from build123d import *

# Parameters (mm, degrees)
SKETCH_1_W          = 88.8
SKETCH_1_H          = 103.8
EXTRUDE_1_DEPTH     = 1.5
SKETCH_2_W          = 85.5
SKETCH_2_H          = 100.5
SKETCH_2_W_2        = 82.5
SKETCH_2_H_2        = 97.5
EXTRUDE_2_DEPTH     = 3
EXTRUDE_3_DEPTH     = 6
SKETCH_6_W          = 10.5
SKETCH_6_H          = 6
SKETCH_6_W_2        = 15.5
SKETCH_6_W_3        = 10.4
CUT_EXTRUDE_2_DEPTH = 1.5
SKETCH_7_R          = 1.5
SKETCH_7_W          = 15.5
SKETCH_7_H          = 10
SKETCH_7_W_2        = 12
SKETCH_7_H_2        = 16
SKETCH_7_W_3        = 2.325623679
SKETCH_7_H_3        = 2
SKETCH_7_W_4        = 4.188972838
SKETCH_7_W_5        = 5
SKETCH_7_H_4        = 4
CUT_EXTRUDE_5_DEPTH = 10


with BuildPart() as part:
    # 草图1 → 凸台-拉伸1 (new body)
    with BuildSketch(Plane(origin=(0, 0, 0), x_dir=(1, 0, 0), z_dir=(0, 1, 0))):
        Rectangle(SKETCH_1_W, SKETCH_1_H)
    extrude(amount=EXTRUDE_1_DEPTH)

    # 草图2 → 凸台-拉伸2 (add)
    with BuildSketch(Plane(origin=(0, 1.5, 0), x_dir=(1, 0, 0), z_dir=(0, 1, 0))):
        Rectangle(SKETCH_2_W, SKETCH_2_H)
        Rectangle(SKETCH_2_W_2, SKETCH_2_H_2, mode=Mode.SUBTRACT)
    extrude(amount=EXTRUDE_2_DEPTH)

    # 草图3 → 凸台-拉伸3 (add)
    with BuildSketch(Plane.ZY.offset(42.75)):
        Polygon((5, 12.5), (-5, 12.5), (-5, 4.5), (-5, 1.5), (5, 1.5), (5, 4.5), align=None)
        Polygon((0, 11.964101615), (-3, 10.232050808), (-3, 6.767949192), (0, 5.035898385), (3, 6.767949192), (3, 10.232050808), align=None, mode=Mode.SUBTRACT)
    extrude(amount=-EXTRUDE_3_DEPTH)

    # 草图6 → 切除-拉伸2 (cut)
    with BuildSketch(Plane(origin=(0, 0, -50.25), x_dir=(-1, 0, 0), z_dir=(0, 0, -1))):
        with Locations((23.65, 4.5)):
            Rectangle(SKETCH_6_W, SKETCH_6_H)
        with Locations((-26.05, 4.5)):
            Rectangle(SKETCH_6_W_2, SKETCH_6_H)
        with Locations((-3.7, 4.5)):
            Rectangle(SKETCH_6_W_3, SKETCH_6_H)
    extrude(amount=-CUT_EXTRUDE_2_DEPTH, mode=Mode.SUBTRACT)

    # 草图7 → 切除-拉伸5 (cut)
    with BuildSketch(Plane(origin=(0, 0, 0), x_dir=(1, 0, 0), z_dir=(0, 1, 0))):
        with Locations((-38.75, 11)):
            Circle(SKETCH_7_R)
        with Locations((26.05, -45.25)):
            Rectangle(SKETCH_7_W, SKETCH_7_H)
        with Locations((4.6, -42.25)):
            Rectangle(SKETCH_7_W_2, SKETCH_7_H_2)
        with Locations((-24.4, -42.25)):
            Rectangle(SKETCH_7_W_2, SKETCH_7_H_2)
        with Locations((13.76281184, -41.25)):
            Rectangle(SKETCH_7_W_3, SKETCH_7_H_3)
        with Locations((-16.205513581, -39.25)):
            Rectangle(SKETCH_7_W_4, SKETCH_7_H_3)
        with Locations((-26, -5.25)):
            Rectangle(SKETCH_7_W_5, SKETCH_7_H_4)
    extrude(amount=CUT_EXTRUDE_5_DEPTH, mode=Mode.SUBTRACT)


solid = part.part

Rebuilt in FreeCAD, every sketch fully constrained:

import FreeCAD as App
import Part
import Sketcher
from FreeCAD import Vector
Q = App.Units.Quantity


def add_polygon(sketch, points):
    """Adds a closed chain of lines whose ends are joined by coincident constraints."""
    first, n = sketch.GeometryCount, len(points)
    for a, b in zip(points, points[1:] + points[:1]):
        sketch.addGeometry(Part.LineSegment(App.Vector(*a, 0), App.Vector(*b, 0)), False)
    for i in range(n):
        sketch.addConstraint(Sketcher.Constraint("Coincident", first + i, 2, first + (i + 1) % n, 1))

doc = App.newDocument("Part")
body = doc.addObject("PartDesign::Body", "Body")

# Sketch on XZ plane
sketch1 = doc.addObject("Sketcher::SketchObject", "Sketch")
body.addObject(sketch1)
sketch1.AttachmentSupport = (doc.XZ_Plane, [""])
sketch1.MapMode = "FlatFace"
add_polygon(sketch1, [(-44.4, -51.9), (-44.4, 51.9), (44.4, 51.9), (44.4, -51.9)])  # lines 0-3
sketch1.addConstraint(Sketcher.Constraint("Vertical", 0))
sketch1.addConstraint(Sketcher.Constraint("Horizontal", 1))
sketch1.addConstraint(Sketcher.Constraint("Vertical", 2))
sketch1.addConstraint(Sketcher.Constraint("Horizontal", 3))
sketch1.addConstraint(Sketcher.Constraint("Symmetric", 0, 2, 2, 2, -1, 1))
sketch1.addConstraint(Sketcher.Constraint("DistanceX", 1, 1, 1, 2, 88.8))
sketch1.addConstraint(Sketcher.Constraint("DistanceY", 0, 1, 0, 2, 103.8))
pad1 = doc.addObject("PartDesign::Pad", "Pad")
body.addObject(pad1)
pad1.Profile = sketch1
pad1.Length = 1.5
pad1.Reversed = True

# Sketch on XZ plane
sketch2 = doc.addObject("Sketcher::SketchObject", "Sketch001")
body.addObject(sketch2)
sketch2.AttachmentSupport = (doc.XZ_Plane, [""])
sketch2.MapMode = "FlatFace"
sketch2.AttachmentOffset = App.Placement(Vector(0, 0, -1.5), App.Rotation())
add_polygon(sketch2, [(-42.75, -50.25), (-42.75, 50.25), (42.75, 50.25), (42.75, -50.25)])  # lines 0-3
add_polygon(sketch2, [(41.25, 48.75), (-41.25, 48.75), (-41.25, -48.75), (41.25, -48.75)])  # lines 4-7
sketch2.addConstraint(Sketcher.Constraint("Vertical", 0))
sketch2.addConstraint(Sketcher.Constraint("Horizontal", 1))
sketch2.addConstraint(Sketcher.Constraint("Vertical", 2))
sketch2.addConstraint(Sketcher.Constraint("Horizontal", 3))
sketch2.addConstraint(Sketcher.Constraint("Horizontal", 4))
sketch2.addConstraint(Sketcher.Constraint("Vertical", 5))
sketch2.addConstraint(Sketcher.Constraint("Horizontal", 6))
sketch2.addConstraint(Sketcher.Constraint("Vertical", 7))
sketch2.addConstraint(Sketcher.Constraint("Symmetric", 0, 2, 2, 2, -1, 1))
sketch2.addConstraint(Sketcher.Constraint("Symmetric", 4, 2, 6, 2, -1, 1))
sketch2.addConstraint(Sketcher.Constraint("DistanceX", 1, 1, 1, 2, 85.5))
sketch2.addConstraint(Sketcher.Constraint("DistanceX", 4, 2, 4, 1, 82.5))
sketch2.addConstraint(Sketcher.Constraint("DistanceY", 0, 1, 0, 2, 100.5))
sketch2.addConstraint(Sketcher.Constraint("DistanceY", 5, 2, 5, 1, 97.5))
pad2 = doc.addObject("PartDesign::Pad", "Pad001")
body.addObject(pad2)
pad2.Profile = sketch2
pad2.Length = 3
pad2.Reversed = True

# Sketch on YZ plane
sketch3 = doc.addObject("Sketcher::SketchObject", "Sketch002")
body.addObject(sketch3)
sketch3.AttachmentSupport = (doc.YZ_Plane, [""])
sketch3.MapMode = "FlatFace"
sketch3.AttachmentOffset = App.Placement(Vector(0, 0, -42.75), App.Rotation())
add_polygon(sketch3, [(12.5, 5), (12.5, -5), (1.5, -5), (1.5, 5)])  # lines 0-3
add_polygon(sketch3, [(10.232051, -3), (11.964102, 0), (10.232051, 3), (6.767949, 3), (5.035898, 0), (6.767949, -3)])  # lines 4-9
sketch3.addConstraint(Sketcher.Constraint("Vertical", 0))
sketch3.addConstraint(Sketcher.Constraint("Horizontal", 1))
sketch3.addConstraint(Sketcher.Constraint("Vertical", 2))
sketch3.addConstraint(Sketcher.Constraint("Horizontal", 3))
sketch3.addConstraint(Sketcher.Constraint("Horizontal", 6))
sketch3.addConstraint(Sketcher.Constraint("Horizontal", 9))
sketch3.addConstraint(Sketcher.Constraint("Symmetric", 6, 2, 8, 2, -1))
sketch3.addConstraint(Sketcher.Constraint("PointOnObject", 4, 2, -1))
sketch3.addConstraint(Sketcher.Constraint("PointOnObject", 7, 2, -1))
sketch3.addConstraint(Sketcher.Constraint("Parallel", 4, 7))
sketch3.addConstraint(Sketcher.Constraint("Parallel", 5, 8))
sketch3.addConstraint(Sketcher.Constraint("DistanceX", 1, 2, 1, 1, 11.0))
sketch3.addConstraint(Sketcher.Constraint("DistanceY", 0, 2, 0, 1, 10.0))
sketch3.addConstraint(Sketcher.Constraint("Angle", 4, Q("60 deg")))
sketch3.addConstraint(Sketcher.Constraint("DistanceY", 0, 2, -1, 1, 5.0))
sketch3.addConstraint(Sketcher.Constraint("DistanceY", -1, 1, 5, 2, 3.0))
sketch3.addConstraint(Sketcher.Constraint("DistanceX", -1, 1, 0, 2, 12.5))
sketch3.addConstraint(Sketcher.Constraint("DistanceX", 6, 2, 6, 1, 3.464102))
sketch3.addConstraint(Sketcher.Constraint("DistanceX", -1, 1, 4, 2, 11.964102))
pad3 = doc.addObject("PartDesign::Pad", "Pad002")
body.addObject(pad3)
pad3.Profile = sketch3
pad3.Length = 6

# Sketch on XY plane
sketch4 = doc.addObject("Sketcher::SketchObject", "Sketch003")
body.addObject(sketch4)
sketch4.AttachmentSupport = (doc.XY_Plane, [""])
sketch4.MapMode = "FlatFace"
sketch4.AttachmentOffset = App.Placement(Vector(0, 0, -50.25), App.Rotation())
add_polygon(sketch4, [(-18.4, 7.5), (-18.4, 1.5), (-28.9, 1.5), (-28.9, 7.5)])  # lines 0-3
add_polygon(sketch4, [(33.8, 7.5), (33.8, 1.5), (18.3, 1.5), (18.3, 7.5)])  # lines 4-7
add_polygon(sketch4, [(8.9, 7.5), (8.9, 1.5), (-1.5, 1.5), (-1.5, 7.5)])  # lines 8-11
sketch4.addConstraint(Sketcher.Constraint("Vertical", 0))
sketch4.addConstraint(Sketcher.Constraint("Horizontal", 1))
sketch4.addConstraint(Sketcher.Constraint("Vertical", 2))
sketch4.addConstraint(Sketcher.Constraint("Horizontal", 3))
sketch4.addConstraint(Sketcher.Constraint("Vertical", 4))
sketch4.addConstraint(Sketcher.Constraint("Horizontal", 5))
sketch4.addConstraint(Sketcher.Constraint("Vertical", 6))
sketch4.addConstraint(Sketcher.Constraint("Horizontal", 7))
sketch4.addConstraint(Sketcher.Constraint("Vertical", 8))
sketch4.addConstraint(Sketcher.Constraint("Horizontal", 9))
sketch4.addConstraint(Sketcher.Constraint("Vertical", 10))
sketch4.addConstraint(Sketcher.Constraint("Horizontal", 11))
sketch4.addConstraint(Sketcher.Constraint("Horizontal", 1, 2, 4, 2))
sketch4.addConstraint(Sketcher.Constraint("Horizontal", 3, 2, 6, 2))
sketch4.addConstraint(Sketcher.Constraint("Horizontal", 5, 2, 8, 2))
sketch4.addConstraint(Sketcher.Constraint("Horizontal", 7, 2, 10, 2))
sketch4.addConstraint(Sketcher.Constraint("DistanceY", 0, 2, 0, 1, 6.0))
sketch4.addConstraint(Sketcher.Constraint("DistanceX", 1, 2, 1, 1, 10.5))
sketch4.addConstraint(Sketcher.Constraint("DistanceX", 5, 2, 5, 1, 15.5))
sketch4.addConstraint(Sketcher.Constraint("DistanceX", 9, 2, 9, 1, 10.4))
sketch4.addConstraint(Sketcher.Constraint("DistanceX", 0, 2, -1, 1, 18.4))
sketch4.addConstraint(Sketcher.Constraint("DistanceY", -1, 1, 0, 2, 1.5))
sketch4.addConstraint(Sketcher.Constraint("DistanceX", -1, 1, 4, 2, 33.8))
sketch4.addConstraint(Sketcher.Constraint("DistanceX", -1, 1, 8, 2, 8.9))
pocket1 = doc.addObject("PartDesign::Pocket", "Pocket")
body.addObject(pocket1)
pocket1.Profile = sketch4
pocket1.Length = 1.5
pocket1.Reversed = True

# Sketch on XZ plane
sketch5 = doc.addObject("Sketcher::SketchObject", "Sketch004")
body.addObject(sketch5)
sketch5.AttachmentSupport = (doc.XZ_Plane, [""])
sketch5.MapMode = "FlatFace"
sketch5.addGeometry(Part.Circle(Vector(-38.75, -11, 0), Vector(0, 0, 1), 1.5), False)  # 0
add_polygon(sketch5, [(18.3, 40.25), (18.3, 50.25), (33.8, 50.25), (33.8, 40.25)])  # lines 1-4
add_polygon(sketch5, [(-1.4, 34.25), (-1.4, 50.25), (10.6, 50.25), (10.6, 34.25)])  # lines 5-8
add_polygon(sketch5, [(-30.4, 34.25), (-30.4, 50.25), (-18.4, 50.25), (-18.4, 34.25)])  # lines 9-12
add_polygon(sketch5, [(12.6, 40.25), (12.6, 42.25), (14.925624, 42.25), (14.925624, 40.25)])  # lines 13-16
add_polygon(sketch5, [(-18.3, 38.25), (-18.3, 40.25), (-14.111027, 40.25), (-14.111027, 38.25)])  # lines 17-20
add_polygon(sketch5, [(-28.5, 3.25), (-28.5, 7.25), (-23.5, 7.25), (-23.5, 3.25)])  # lines 21-24
sketch5.addConstraint(Sketcher.Constraint("Vertical", 1))
sketch5.addConstraint(Sketcher.Constraint("Horizontal", 2))
sketch5.addConstraint(Sketcher.Constraint("Vertical", 3))
sketch5.addConstraint(Sketcher.Constraint("Horizontal", 4))
sketch5.addConstraint(Sketcher.Constraint("Vertical", 5))
sketch5.addConstraint(Sketcher.Constraint("Horizontal", 6))
sketch5.addConstraint(Sketcher.Constraint("Vertical", 7))
sketch5.addConstraint(Sketcher.Constraint("Horizontal", 8))
sketch5.addConstraint(Sketcher.Constraint("Vertical", 9))
sketch5.addConstraint(Sketcher.Constraint("Horizontal", 10))
sketch5.addConstraint(Sketcher.Constraint("Vertical", 11))
sketch5.addConstraint(Sketcher.Constraint("Horizontal", 12))
sketch5.addConstraint(Sketcher.Constraint("Vertical", 13))
sketch5.addConstraint(Sketcher.Constraint("Horizontal", 14))
sketch5.addConstraint(Sketcher.Constraint("Vertical", 15))
sketch5.addConstraint(Sketcher.Constraint("Horizontal", 16))
sketch5.addConstraint(Sketcher.Constraint("Vertical", 17))
sketch5.addConstraint(Sketcher.Constraint("Horizontal", 18))
sketch5.addConstraint(Sketcher.Constraint("Vertical", 19))
sketch5.addConstraint(Sketcher.Constraint("Horizontal", 20))
sketch5.addConstraint(Sketcher.Constraint("Vertical", 21))
sketch5.addConstraint(Sketcher.Constraint("Horizontal", 22))
sketch5.addConstraint(Sketcher.Constraint("Vertical", 23))
sketch5.addConstraint(Sketcher.Constraint("Horizontal", 24))
sketch5.addConstraint(Sketcher.Constraint("Symmetric", 4, 2, 17, 2, -2))
sketch5.addConstraint(Sketcher.Constraint("Horizontal", 2, 2, 5, 2))
sketch5.addConstraint(Sketcher.Constraint("Horizontal", 6, 2, 9, 2))
sketch5.addConstraint(Sketcher.Constraint("Horizontal", 8, 2, 11, 2))
sketch5.addConstraint(Sketcher.Constraint("Horizontal", 4, 2, 15, 2))
sketch5.addConstraint(Sketcher.Constraint("Equal", 8, 10))
sketch5.addConstraint(Sketcher.Constraint("Equal", 15, 17))
sketch5.addConstraint(Sketcher.Constraint("Diameter", 0, 3.0))
sketch5.addConstraint(Sketcher.Constraint("DistanceX", 6, 1, 6, 2, 12.0))
sketch5.addConstraint(Sketcher.Constraint("DistanceX", 22, 1, 22, 2, 5.0))
sketch5.addConstraint(Sketcher.Constraint("DistanceY", 1, 1, 1, 2, 10.0))
sketch5.addConstraint(Sketcher.Constraint("DistanceY", 5, 1, 5, 2, 16.0))
sketch5.addConstraint(Sketcher.Constraint("DistanceY", 13, 1, 13, 2, 2.0))
sketch5.addConstraint(Sketcher.Constraint("DistanceY", 21, 1, 21, 2, 4.0))
sketch5.addConstraint(Sketcher.Constraint("DistanceX", 2, 1, 2, 2, 15.5))
sketch5.addConstraint(Sketcher.Constraint("DistanceY", 0, 3, -1, 1, 11.0))
sketch5.addConstraint(Sketcher.Constraint("DistanceX", 9, 2, 5, 2, 29.0))
sketch5.addConstraint(Sketcher.Constraint("DistanceX", 6, 2, 13, 2, 2.0))
sketch5.addConstraint(Sketcher.Constraint("DistanceY", 21, 2, 12, 2, 27.0))
sketch5.addConstraint(Sketcher.Constraint("DistanceX", -1, 1, 1, 2, 18.3))
sketch5.addConstraint(Sketcher.Constraint("DistanceX", 5, 2, -1, 1, 1.4))
sketch5.addConstraint(Sketcher.Constraint("DistanceX", 21, 2, -1, 1, 28.5))
sketch5.addConstraint(Sketcher.Constraint("DistanceX", 0, 3, -1, 1, 38.75))
sketch5.addConstraint(Sketcher.Constraint("DistanceY", -1, 1, 1, 2, 50.25))
sketch5.addConstraint(Sketcher.Constraint("DistanceX", 14, 1, 14, 2, 2.325624))
sketch5.addConstraint(Sketcher.Constraint("DistanceX", 18, 1, 18, 2, 4.188973))
pocket2 = doc.addObject("PartDesign::Pocket", "Pocket001")
body.addObject(pocket2)
pocket2.Profile = sketch5
pocket2.Length = 10

doc.recompute()
